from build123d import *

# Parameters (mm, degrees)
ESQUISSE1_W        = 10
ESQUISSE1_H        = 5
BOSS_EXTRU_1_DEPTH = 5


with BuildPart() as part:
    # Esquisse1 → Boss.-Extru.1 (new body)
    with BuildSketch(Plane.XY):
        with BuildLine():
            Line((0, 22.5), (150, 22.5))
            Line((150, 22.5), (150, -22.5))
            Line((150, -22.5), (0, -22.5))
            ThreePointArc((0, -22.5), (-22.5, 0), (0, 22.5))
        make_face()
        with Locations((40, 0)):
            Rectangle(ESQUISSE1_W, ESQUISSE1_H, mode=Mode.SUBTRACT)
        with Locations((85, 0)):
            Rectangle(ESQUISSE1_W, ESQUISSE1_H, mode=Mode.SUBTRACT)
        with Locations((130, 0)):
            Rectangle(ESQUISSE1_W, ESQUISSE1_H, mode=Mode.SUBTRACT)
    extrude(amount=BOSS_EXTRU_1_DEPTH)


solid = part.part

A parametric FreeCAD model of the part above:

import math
import FreeCAD as App
import Part
import Sketcher
from FreeCAD import Vector
Q = App.Units.Quantity

doc = App.newDocument("Part")
body = doc.addObject("PartDesign::Body", "Body")

sketch1 = body.newObject("Sketcher::SketchObject", "Sketch")
sketch1.AttachmentSupport = (doc.getObject("XY_Plane"), [""])
sketch1.MapMode = "FlatFace"
sketch1.addGeometry([
    Part.LineSegment(Vector(150, 22, 0), Vector(0, 22, 0)),
    Part.ArcOfCircle(Part.Circle(Vector(0, 0, 0), Vector(0, 0, 1), 22), math.radians(90), math.radians(270)),
    Part.LineSegment(Vector(0, -22, 0), Vector(150, -22, 0)),
    Part.LineSegment(Vector(150, -22, 0), Vector(150, 22, 0)),
    Part.LineSegment(Vector(125, -2, 0), Vector(125, 2, 0)),
    Part.LineSegment(Vector(125, 2, 0), Vector(135, 2, 0)),
    Part.LineSegment(Vector(135, 2, 0), Vector(135, -2, 0)),
    Part.LineSegment(Vector(135, -2, 0), Vector(125, -2, 0)),
    Part.LineSegment(Vector(80, -2, 0), Vector(80, 2, 0)),
    Part.LineSegment(Vector(80, 2, 0), Vector(90, 2, 0)),
    Part.LineSegment(Vector(90, 2, 0), Vector(90, -2, 0)),
    Part.LineSegment(Vector(90, -2, 0), Vector(80, -2, 0)),
    Part.LineSegment(Vector(35, -2, 0), Vector(35, 2, 0)),
    Part.LineSegment(Vector(35, 2, 0), Vector(45, 2, 0)),
    Part.LineSegment(Vector(45, 2, 0), Vector(45, -2, 0)),
    Part.LineSegment(Vector(45, -2, 0), Vector(35, -2, 0)),
], False)
sketch1.addConstraint([
    Sketcher.Constraint("Tangent", 0, 2, 1, 1),
    Sketcher.Constraint("Tangent", 1, 2, 2, 1),
    Sketcher.Constraint("Coincident", 2, 2, 3, 1),
    Sketcher.Constraint("Coincident", 3, 2, 0, 1),
    Sketcher.Constraint("Coincident", 4, 2, 5, 1),
    Sketcher.Constraint("Coincident", 5, 2, 6, 1),
    Sketcher.Constraint("Coincident", 6, 2, 7, 1),
    Sketcher.Constraint("Coincident", 7, 2, 4, 1),
    Sketcher.Constraint("Coincident", 8, 2, 9, 1),
    Sketcher.Constraint("Coincident", 9, 2, 10, 1),
    Sketcher.Constraint("Coincident", 10, 2, 11, 1),
    Sketcher.Constraint("Coincident", 11, 2, 8, 1),
    Sketcher.Constraint("Coincident", 12, 2, 13, 1),
    Sketcher.Constraint("Coincident", 13, 2, 14, 1),
    Sketcher.Constraint("Coincident", 14, 2, 15, 1),
    Sketcher.Constraint("Coincident", 15, 2, 12, 1),
    Sketcher.Constraint("Horizontal", 0),
    Sketcher.Constraint("Horizontal", 2),
    Sketcher.Constraint("Vertical", 3),
    Sketcher.Constraint("Vertical", 4),
    Sketcher.Constraint("Horizontal", 5),
    Sketcher.Constraint("Vertical", 6),
    Sketcher.Constraint("Horizontal", 7),
    Sketcher.Constraint("Vertical", 8),
    Sketcher.Constraint("Horizontal", 9),
    Sketcher.Constraint("Vertical", 10),
    Sketcher.Constraint("Horizontal", 11),
    Sketcher.Constraint("Vertical", 12),
    Sketcher.Constraint("Horizontal", 13),
    Sketcher.Constraint("Vertical", 14),
    Sketcher.Constraint("Horizontal", 15),
    Sketcher.Constraint("Coincident", 1, 3, -1, 1),
    Sketcher.Constraint("Horizontal", 5, 2, 8, 2),
    Sketcher.Constraint("Horizontal", 7, 2, 10, 2),
    Sketcher.Constraint("Horizontal", 9, 2, 12, 2),
    Sketcher.Constraint("Horizontal", 11, 2, 14, 2),
    Sketcher.Constraint("Equal", 7, 9),
    Sketcher.Constraint("Equal", 11, 13),
    Sketcher.Constraint("Radius", 1, Q("22.5 mm")),
    Sketcher.Constraint("DistanceX", 0, 2, 0, 1, Q("150 mm")),
    Sketcher.Constraint("DistanceX", 5, 1, 5, 2, Q("10 mm")),
    Sketcher.Constraint("DistanceY", 4, 1, 4, 2, Q("5 mm")),
    Sketcher.Constraint("DistanceX", -1, 1, 4, 2, Q("125 mm")),
    Sketcher.Constraint("DistanceX", -1, 1, 8, 2, Q("80 mm")),
    Sketcher.Constraint("DistanceX", -1, 1, 12, 2, Q("35 mm")),
    Sketcher.Constraint("DistanceY", 4, 2, 3, 2, Q("20 mm")),
])
pad1 = body.newObject("PartDesign::Pad", "Pad")
pad1.Profile = sketch1
pad1.Length = 5

doc.recompute()
